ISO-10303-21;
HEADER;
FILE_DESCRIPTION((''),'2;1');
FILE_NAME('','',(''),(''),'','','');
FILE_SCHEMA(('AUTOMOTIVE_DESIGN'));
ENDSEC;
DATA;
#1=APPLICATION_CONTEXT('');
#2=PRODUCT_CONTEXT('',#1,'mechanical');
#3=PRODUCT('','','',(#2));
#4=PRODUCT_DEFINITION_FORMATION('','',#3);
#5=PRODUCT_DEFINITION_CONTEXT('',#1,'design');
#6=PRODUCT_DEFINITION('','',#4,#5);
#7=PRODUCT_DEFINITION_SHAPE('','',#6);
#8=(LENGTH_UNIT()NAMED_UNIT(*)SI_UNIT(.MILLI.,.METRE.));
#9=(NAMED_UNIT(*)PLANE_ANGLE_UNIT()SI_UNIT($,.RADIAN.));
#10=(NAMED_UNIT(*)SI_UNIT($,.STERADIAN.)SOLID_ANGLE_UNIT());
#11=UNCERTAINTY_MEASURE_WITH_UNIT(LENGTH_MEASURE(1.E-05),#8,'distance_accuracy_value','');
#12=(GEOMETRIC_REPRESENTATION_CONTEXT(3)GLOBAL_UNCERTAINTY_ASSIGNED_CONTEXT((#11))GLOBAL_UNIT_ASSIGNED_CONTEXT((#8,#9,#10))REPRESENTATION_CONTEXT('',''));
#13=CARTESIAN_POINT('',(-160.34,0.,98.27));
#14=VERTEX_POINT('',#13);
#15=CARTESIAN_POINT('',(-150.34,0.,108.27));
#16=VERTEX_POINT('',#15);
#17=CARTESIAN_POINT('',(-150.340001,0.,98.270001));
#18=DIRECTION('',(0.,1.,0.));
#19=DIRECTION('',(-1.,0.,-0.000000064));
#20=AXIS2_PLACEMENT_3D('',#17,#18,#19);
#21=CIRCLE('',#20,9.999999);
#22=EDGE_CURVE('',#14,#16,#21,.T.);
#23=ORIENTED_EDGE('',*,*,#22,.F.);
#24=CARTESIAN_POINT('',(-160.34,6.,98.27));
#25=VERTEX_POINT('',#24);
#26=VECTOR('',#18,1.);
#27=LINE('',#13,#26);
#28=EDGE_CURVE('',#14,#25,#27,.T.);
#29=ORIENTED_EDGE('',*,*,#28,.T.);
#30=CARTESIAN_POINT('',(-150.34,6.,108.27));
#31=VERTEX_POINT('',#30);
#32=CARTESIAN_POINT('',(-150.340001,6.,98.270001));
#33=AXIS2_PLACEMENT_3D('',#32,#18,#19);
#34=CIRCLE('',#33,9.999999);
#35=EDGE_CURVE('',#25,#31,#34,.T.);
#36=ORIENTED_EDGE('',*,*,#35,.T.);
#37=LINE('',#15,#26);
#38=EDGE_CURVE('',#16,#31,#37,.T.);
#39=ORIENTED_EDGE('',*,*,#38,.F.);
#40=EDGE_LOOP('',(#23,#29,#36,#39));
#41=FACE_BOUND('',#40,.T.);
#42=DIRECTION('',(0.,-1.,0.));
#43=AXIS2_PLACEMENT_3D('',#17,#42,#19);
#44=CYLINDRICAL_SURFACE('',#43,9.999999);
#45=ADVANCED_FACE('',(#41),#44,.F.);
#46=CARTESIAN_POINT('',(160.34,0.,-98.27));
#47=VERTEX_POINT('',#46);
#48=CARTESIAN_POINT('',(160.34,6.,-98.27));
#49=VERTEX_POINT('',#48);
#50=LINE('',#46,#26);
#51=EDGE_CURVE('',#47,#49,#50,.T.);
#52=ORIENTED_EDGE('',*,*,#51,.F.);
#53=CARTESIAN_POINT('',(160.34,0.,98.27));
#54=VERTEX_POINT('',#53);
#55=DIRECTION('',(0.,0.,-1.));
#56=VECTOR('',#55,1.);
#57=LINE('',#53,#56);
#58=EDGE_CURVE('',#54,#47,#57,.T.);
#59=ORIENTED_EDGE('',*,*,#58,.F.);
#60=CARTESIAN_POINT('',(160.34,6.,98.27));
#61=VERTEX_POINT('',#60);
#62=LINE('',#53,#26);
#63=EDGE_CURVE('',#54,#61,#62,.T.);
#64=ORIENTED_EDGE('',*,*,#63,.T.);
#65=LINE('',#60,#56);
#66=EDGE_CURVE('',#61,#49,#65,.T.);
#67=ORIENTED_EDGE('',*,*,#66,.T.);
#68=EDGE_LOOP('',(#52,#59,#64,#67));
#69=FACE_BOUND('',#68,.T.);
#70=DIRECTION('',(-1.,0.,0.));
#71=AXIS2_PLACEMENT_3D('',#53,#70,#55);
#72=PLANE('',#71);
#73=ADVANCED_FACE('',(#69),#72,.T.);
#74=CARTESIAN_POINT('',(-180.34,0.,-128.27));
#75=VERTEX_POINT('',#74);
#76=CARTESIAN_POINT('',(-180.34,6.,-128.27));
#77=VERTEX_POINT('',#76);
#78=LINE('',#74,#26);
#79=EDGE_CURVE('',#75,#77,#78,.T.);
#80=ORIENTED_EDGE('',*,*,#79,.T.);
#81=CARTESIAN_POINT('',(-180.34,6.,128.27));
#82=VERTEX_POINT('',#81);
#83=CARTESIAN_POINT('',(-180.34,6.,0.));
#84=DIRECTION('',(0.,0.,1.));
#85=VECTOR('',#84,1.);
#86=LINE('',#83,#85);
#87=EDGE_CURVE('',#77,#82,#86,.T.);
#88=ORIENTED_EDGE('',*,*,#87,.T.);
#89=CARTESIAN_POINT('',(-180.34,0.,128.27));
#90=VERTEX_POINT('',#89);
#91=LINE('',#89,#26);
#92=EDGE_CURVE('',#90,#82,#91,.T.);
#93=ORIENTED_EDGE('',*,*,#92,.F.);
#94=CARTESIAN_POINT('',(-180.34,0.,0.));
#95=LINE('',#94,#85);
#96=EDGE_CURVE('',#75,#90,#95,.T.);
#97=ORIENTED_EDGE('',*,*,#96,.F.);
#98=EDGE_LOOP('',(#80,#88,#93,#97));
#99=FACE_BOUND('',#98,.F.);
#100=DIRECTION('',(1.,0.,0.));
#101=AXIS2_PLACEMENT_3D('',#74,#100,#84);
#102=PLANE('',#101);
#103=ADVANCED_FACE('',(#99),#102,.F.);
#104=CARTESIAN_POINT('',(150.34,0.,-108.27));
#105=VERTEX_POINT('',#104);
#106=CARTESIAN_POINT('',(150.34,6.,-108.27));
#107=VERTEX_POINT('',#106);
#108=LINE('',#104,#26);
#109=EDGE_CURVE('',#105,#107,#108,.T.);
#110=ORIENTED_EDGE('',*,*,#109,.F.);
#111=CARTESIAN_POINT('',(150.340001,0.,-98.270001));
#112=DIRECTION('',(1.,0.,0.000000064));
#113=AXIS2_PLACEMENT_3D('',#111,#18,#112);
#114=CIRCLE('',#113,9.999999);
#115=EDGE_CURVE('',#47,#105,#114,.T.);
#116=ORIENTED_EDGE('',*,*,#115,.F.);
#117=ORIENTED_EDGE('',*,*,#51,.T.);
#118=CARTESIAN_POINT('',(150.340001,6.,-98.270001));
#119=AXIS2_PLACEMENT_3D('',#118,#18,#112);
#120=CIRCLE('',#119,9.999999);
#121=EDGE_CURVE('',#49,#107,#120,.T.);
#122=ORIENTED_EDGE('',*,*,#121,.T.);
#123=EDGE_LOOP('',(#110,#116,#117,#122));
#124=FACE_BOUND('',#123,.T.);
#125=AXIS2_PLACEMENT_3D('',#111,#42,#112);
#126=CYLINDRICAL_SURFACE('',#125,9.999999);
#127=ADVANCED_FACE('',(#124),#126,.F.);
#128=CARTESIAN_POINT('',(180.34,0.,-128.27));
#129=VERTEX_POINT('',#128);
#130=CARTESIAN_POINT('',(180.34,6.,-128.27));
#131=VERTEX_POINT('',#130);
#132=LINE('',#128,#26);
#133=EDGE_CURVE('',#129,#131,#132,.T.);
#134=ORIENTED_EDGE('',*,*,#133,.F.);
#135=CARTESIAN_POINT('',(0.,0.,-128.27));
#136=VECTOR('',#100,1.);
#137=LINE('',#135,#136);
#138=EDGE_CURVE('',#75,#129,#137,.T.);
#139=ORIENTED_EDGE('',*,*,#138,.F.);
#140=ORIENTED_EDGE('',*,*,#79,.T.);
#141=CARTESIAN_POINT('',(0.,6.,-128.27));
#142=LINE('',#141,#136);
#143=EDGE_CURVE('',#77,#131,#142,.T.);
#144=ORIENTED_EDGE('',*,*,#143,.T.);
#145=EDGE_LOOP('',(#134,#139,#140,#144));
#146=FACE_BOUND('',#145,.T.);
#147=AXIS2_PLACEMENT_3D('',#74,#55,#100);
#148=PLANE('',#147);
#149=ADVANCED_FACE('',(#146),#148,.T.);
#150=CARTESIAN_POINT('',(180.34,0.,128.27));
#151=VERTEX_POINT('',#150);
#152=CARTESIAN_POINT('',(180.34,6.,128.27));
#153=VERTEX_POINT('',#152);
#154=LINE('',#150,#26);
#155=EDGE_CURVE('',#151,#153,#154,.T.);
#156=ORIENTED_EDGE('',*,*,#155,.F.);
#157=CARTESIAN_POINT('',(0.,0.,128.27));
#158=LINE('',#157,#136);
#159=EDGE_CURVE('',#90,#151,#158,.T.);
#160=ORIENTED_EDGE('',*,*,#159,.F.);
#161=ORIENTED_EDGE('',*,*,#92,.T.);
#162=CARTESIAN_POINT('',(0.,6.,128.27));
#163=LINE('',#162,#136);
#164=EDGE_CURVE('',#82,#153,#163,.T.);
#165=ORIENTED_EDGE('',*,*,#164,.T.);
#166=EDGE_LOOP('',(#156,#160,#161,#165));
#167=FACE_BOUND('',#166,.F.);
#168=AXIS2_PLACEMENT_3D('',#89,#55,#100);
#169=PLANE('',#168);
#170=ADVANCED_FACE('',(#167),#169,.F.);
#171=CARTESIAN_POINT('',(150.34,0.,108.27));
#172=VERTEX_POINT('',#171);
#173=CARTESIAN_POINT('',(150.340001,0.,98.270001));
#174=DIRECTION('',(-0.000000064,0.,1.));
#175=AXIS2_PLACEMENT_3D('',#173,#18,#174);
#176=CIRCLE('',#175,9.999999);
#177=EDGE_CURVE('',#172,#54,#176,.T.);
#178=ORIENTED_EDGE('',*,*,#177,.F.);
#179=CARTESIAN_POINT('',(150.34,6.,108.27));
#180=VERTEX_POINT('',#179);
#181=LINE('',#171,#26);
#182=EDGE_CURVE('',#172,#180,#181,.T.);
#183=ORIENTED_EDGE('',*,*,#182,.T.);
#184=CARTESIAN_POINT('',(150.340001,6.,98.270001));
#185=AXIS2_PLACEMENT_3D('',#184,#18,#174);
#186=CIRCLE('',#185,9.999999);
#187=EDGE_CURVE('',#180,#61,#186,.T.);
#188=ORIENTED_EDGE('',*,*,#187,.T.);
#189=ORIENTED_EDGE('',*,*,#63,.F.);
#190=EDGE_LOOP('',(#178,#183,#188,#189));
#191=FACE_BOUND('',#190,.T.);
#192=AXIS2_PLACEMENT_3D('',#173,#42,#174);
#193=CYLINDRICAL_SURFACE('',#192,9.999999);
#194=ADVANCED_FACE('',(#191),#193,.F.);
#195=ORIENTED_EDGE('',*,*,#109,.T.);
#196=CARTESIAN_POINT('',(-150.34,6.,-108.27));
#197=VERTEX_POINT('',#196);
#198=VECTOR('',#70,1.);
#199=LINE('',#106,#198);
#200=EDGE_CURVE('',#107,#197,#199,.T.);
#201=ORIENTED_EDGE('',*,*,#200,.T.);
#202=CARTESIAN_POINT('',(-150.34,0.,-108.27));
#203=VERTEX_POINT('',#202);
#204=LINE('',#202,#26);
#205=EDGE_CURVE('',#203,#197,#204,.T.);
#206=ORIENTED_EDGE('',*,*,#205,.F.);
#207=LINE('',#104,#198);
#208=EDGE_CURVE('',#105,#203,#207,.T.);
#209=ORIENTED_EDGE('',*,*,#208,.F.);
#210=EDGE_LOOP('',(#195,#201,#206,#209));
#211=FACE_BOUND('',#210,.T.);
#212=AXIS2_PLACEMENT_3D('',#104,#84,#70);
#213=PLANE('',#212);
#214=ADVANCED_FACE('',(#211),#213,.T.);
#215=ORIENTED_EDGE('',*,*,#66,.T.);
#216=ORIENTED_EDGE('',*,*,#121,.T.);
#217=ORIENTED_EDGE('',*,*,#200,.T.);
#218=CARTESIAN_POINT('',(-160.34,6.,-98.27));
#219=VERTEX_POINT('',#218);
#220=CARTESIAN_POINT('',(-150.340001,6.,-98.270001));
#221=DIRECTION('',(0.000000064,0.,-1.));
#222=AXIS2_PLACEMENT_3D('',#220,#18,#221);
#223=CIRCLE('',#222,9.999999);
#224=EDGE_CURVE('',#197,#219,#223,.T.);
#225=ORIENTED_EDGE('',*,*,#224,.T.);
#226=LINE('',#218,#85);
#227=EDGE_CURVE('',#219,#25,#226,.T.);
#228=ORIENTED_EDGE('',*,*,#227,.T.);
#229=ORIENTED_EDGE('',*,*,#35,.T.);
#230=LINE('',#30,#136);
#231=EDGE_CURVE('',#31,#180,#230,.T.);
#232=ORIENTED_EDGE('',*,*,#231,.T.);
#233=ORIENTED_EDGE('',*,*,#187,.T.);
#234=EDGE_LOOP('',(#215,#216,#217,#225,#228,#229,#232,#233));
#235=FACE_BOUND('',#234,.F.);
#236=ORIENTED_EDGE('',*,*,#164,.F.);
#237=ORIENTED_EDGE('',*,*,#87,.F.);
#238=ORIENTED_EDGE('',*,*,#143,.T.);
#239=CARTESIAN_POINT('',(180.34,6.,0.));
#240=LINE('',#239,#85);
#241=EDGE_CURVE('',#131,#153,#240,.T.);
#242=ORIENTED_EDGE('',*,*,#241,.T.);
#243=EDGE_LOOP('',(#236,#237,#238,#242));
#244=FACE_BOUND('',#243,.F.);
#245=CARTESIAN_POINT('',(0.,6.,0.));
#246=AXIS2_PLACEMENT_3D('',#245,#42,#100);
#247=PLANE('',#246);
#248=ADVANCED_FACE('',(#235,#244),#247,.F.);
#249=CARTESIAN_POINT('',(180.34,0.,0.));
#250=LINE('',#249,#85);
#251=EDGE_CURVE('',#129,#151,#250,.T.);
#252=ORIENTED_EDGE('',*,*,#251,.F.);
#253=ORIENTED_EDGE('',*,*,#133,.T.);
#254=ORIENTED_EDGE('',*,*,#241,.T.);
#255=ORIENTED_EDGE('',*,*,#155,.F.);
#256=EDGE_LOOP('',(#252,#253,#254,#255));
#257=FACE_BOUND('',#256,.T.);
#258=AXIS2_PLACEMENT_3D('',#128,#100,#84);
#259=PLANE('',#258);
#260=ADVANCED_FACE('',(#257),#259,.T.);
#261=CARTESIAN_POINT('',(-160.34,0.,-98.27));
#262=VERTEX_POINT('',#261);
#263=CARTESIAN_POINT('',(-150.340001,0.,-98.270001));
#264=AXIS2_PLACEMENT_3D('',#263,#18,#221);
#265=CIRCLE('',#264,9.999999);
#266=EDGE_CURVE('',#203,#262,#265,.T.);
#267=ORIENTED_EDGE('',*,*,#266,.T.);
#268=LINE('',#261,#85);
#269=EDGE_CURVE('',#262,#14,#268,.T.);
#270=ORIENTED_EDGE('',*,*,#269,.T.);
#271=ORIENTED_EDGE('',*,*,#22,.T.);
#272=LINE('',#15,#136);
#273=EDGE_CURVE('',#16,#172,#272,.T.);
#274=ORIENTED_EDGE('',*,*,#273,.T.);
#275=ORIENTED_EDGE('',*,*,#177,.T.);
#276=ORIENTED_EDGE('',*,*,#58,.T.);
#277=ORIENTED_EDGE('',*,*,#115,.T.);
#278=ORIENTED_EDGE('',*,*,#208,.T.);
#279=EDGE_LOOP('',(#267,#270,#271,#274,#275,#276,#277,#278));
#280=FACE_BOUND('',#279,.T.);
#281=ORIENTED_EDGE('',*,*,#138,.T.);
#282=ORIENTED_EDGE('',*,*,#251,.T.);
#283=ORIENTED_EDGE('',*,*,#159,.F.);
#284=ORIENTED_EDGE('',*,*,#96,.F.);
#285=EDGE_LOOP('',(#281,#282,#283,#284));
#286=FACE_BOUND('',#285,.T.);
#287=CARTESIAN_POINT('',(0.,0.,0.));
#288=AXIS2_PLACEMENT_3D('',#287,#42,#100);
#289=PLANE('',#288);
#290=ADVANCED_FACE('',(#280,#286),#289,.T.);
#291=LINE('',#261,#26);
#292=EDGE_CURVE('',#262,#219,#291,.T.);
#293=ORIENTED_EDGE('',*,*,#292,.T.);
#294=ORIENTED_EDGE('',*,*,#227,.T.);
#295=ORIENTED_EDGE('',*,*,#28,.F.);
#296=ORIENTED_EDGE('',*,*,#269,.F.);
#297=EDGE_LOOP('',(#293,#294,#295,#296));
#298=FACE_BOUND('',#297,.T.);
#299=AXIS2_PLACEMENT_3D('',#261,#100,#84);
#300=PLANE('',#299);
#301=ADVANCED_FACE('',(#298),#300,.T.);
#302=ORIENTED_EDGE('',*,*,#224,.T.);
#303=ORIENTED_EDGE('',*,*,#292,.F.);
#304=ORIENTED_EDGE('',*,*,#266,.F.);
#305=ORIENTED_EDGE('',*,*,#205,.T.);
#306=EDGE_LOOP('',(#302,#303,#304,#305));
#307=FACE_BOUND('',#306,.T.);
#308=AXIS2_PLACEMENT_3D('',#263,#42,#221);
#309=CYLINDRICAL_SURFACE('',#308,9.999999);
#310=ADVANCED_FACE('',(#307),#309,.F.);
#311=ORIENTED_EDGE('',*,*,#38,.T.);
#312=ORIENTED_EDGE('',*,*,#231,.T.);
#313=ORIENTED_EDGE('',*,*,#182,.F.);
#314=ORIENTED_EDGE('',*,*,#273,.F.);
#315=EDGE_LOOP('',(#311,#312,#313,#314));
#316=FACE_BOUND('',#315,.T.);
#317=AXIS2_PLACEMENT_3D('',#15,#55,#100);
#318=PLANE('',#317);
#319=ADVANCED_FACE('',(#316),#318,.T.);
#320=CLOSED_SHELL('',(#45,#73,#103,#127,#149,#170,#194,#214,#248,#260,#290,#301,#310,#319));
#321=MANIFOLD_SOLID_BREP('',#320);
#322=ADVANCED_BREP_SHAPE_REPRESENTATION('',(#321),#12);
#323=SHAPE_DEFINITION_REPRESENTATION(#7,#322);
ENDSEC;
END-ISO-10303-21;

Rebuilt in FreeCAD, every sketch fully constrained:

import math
import FreeCAD as App
import Part
import Sketcher

V = App.Vector
Q = App.Units.Quantity

doc = App.newDocument("Part")
params = doc.addObject("Spreadsheet::Sheet", "Params")
for row, (alias, value) in enumerate([
    ("sketch1_radius", "9.999999 mm"),
    ("sketch1_width", "360.68 mm"),
    ("sketch1_height", "256.54 mm"),
    ("pad1_length", "6 mm"),
], start=1):
    params.set(f"A{row}", alias)
    params.set(f"B{row}", "=" + value)
    params.setAlias(f"B{row}", alias)

body = doc.addObject("PartDesign::Body", "Body")

# Sketch on XZ plane
sketch1 = body.newObject("Sketcher::SketchObject", "Sketch")
sketch1.AttachmentSupport = (doc.getObject("XZ_Plane"), [""])
sketch1.MapMode = "FlatFace"
sketch1.addGeometry(Part.LineSegment(V(-180, 128, 0), V(-180, -128, 0)), False)
sketch1.addGeometry(Part.LineSegment(V(-180, -128, 0), V(180, -128, 0)), False)
sketch1.addGeometry(Part.LineSegment(V(180, -128, 0), V(180, 128, 0)), False)
sketch1.addGeometry(Part.LineSegment(V(180, 128, 0), V(-180, 128, 0)), False)
sketch1.addGeometry(Part.LineSegment(V(-160, -98, 0), V(-160, 98, 0)), False)
sketch1.addGeometry(Part.ArcOfCircle(Part.Circle(V(-150, 98, 0), V(0, 0, 1), 10), math.radians(90), math.radians(180)), False)
sketch1.addGeometry(Part.LineSegment(V(-150, 108, 0), V(150, 108, 0)), False)
sketch1.addGeometry(Part.ArcOfCircle(Part.Circle(V(150, 98, 0), V(0, 0, 1), 10), math.radians(0), math.radians(90)), False)
sketch1.addGeometry(Part.LineSegment(V(160, 98, 0), V(160, -98, 0)), False)
sketch1.addGeometry(Part.ArcOfCircle(Part.Circle(V(150, -98, 0), V(0, 0, 1), 10), math.radians(-90), math.radians(0)), False)
sketch1.addGeometry(Part.LineSegment(V(150, -108, 0), V(-150, -108, 0)), False)
sketch1.addGeometry(Part.ArcOfCircle(Part.Circle(V(-150, -98, 0), V(0, 0, 1), 10), math.radians(180), math.radians(270)), False)
sketch1.addConstraint(Sketcher.Constraint("Coincident", 0, 2, 1, 1))
sketch1.addConstraint(Sketcher.Constraint("Coincident", 1, 2, 2, 1))
sketch1.addConstraint(Sketcher.Constraint("Coincident", 2, 2, 3, 1))
sketch1.addConstraint(Sketcher.Constraint("Coincident", 3, 2, 0, 1))
sketch1.addConstraint(Sketcher.Constraint("Tangent", 4, 2, 5, 2))
sketch1.addConstraint(Sketcher.Constraint("Tangent", 5, 1, 6, 1))
sketch1.addConstraint(Sketcher.Constraint("Tangent", 6, 2, 7, 2))
sketch1.addConstraint(Sketcher.Constraint("Tangent", 7, 1, 8, 1))
sketch1.addConstraint(Sketcher.Constraint("Tangent", 8, 2, 9, 2))
sketch1.addConstraint(Sketcher.Constraint("Tangent", 9, 1, 10, 1))
sketch1.addConstraint(Sketcher.Constraint("Tangent", 10, 2, 11, 2))
sketch1.addConstraint(Sketcher.Constraint("Tangent", 11, 1, 4, 1))
sketch1.addConstraint(Sketcher.Constraint("Vertical", 0))
sketch1.addConstraint(Sketcher.Constraint("Horizontal", 1))
sketch1.addConstraint(Sketcher.Constraint("Vertical", 2))
sketch1.addConstraint(Sketcher.Constraint("Horizontal", 3))
sketch1.addConstraint(Sketcher.Constraint("Vertical", 4))
sketch1.addConstraint(Sketcher.Constraint("Horizontal", 6))
sketch1.addConstraint(Sketcher.Constraint("Vertical", 8))
sketch1.addConstraint(Sketcher.Constraint("Horizontal", 10))
sketch1.addConstraint(Sketcher.Constraint("Equal", 5, 7))
sketch1.addConstraint(Sketcher.Constraint("Equal", 7, 9))
sketch1.addConstraint(Sketcher.Constraint("Equal", 9, 11))
sketch1.addConstraint(Sketcher.Constraint("Symmetric", 5, 3, 9, 3, -1, 1))
sketch1.addConstraint(Sketcher.Constraint("Symmetric", 0, 2, 2, 2, -1, 1))
sketch1.addConstraint(Sketcher.Constraint("Radius", 5, Q("9.999999 mm")))
sketch1.addConstraint(Sketcher.Constraint("DistanceX", 0, 2, 11, 3, Q("29.999999 mm")))
sketch1.addConstraint(Sketcher.Constraint("DistanceY", 0, 2, 11, 3, Q("29.999999 mm")))
sketch1.addConstraint(Sketcher.Constraint("DistanceX", 1, 1, 1, 2, Q("360.68 mm")))
sketch1.addConstraint(Sketcher.Constraint("DistanceY", 0, 2, 0, 1, Q("256.54 mm")))
sketch1.setExpression("Constraints[25]", "Params.sketch1_radius")
sketch1.setExpression("Constraints[28]", "Params.sketch1_width")
sketch1.setExpression("Constraints[29]", "Params.sketch1_height")
pad1 = body.newObject("PartDesign::Pad", "Pad")
pad1.Profile = sketch1
pad1.setExpression("Length", "Params.pad1_length")
pad1.Reversed = True

doc.recompute()
